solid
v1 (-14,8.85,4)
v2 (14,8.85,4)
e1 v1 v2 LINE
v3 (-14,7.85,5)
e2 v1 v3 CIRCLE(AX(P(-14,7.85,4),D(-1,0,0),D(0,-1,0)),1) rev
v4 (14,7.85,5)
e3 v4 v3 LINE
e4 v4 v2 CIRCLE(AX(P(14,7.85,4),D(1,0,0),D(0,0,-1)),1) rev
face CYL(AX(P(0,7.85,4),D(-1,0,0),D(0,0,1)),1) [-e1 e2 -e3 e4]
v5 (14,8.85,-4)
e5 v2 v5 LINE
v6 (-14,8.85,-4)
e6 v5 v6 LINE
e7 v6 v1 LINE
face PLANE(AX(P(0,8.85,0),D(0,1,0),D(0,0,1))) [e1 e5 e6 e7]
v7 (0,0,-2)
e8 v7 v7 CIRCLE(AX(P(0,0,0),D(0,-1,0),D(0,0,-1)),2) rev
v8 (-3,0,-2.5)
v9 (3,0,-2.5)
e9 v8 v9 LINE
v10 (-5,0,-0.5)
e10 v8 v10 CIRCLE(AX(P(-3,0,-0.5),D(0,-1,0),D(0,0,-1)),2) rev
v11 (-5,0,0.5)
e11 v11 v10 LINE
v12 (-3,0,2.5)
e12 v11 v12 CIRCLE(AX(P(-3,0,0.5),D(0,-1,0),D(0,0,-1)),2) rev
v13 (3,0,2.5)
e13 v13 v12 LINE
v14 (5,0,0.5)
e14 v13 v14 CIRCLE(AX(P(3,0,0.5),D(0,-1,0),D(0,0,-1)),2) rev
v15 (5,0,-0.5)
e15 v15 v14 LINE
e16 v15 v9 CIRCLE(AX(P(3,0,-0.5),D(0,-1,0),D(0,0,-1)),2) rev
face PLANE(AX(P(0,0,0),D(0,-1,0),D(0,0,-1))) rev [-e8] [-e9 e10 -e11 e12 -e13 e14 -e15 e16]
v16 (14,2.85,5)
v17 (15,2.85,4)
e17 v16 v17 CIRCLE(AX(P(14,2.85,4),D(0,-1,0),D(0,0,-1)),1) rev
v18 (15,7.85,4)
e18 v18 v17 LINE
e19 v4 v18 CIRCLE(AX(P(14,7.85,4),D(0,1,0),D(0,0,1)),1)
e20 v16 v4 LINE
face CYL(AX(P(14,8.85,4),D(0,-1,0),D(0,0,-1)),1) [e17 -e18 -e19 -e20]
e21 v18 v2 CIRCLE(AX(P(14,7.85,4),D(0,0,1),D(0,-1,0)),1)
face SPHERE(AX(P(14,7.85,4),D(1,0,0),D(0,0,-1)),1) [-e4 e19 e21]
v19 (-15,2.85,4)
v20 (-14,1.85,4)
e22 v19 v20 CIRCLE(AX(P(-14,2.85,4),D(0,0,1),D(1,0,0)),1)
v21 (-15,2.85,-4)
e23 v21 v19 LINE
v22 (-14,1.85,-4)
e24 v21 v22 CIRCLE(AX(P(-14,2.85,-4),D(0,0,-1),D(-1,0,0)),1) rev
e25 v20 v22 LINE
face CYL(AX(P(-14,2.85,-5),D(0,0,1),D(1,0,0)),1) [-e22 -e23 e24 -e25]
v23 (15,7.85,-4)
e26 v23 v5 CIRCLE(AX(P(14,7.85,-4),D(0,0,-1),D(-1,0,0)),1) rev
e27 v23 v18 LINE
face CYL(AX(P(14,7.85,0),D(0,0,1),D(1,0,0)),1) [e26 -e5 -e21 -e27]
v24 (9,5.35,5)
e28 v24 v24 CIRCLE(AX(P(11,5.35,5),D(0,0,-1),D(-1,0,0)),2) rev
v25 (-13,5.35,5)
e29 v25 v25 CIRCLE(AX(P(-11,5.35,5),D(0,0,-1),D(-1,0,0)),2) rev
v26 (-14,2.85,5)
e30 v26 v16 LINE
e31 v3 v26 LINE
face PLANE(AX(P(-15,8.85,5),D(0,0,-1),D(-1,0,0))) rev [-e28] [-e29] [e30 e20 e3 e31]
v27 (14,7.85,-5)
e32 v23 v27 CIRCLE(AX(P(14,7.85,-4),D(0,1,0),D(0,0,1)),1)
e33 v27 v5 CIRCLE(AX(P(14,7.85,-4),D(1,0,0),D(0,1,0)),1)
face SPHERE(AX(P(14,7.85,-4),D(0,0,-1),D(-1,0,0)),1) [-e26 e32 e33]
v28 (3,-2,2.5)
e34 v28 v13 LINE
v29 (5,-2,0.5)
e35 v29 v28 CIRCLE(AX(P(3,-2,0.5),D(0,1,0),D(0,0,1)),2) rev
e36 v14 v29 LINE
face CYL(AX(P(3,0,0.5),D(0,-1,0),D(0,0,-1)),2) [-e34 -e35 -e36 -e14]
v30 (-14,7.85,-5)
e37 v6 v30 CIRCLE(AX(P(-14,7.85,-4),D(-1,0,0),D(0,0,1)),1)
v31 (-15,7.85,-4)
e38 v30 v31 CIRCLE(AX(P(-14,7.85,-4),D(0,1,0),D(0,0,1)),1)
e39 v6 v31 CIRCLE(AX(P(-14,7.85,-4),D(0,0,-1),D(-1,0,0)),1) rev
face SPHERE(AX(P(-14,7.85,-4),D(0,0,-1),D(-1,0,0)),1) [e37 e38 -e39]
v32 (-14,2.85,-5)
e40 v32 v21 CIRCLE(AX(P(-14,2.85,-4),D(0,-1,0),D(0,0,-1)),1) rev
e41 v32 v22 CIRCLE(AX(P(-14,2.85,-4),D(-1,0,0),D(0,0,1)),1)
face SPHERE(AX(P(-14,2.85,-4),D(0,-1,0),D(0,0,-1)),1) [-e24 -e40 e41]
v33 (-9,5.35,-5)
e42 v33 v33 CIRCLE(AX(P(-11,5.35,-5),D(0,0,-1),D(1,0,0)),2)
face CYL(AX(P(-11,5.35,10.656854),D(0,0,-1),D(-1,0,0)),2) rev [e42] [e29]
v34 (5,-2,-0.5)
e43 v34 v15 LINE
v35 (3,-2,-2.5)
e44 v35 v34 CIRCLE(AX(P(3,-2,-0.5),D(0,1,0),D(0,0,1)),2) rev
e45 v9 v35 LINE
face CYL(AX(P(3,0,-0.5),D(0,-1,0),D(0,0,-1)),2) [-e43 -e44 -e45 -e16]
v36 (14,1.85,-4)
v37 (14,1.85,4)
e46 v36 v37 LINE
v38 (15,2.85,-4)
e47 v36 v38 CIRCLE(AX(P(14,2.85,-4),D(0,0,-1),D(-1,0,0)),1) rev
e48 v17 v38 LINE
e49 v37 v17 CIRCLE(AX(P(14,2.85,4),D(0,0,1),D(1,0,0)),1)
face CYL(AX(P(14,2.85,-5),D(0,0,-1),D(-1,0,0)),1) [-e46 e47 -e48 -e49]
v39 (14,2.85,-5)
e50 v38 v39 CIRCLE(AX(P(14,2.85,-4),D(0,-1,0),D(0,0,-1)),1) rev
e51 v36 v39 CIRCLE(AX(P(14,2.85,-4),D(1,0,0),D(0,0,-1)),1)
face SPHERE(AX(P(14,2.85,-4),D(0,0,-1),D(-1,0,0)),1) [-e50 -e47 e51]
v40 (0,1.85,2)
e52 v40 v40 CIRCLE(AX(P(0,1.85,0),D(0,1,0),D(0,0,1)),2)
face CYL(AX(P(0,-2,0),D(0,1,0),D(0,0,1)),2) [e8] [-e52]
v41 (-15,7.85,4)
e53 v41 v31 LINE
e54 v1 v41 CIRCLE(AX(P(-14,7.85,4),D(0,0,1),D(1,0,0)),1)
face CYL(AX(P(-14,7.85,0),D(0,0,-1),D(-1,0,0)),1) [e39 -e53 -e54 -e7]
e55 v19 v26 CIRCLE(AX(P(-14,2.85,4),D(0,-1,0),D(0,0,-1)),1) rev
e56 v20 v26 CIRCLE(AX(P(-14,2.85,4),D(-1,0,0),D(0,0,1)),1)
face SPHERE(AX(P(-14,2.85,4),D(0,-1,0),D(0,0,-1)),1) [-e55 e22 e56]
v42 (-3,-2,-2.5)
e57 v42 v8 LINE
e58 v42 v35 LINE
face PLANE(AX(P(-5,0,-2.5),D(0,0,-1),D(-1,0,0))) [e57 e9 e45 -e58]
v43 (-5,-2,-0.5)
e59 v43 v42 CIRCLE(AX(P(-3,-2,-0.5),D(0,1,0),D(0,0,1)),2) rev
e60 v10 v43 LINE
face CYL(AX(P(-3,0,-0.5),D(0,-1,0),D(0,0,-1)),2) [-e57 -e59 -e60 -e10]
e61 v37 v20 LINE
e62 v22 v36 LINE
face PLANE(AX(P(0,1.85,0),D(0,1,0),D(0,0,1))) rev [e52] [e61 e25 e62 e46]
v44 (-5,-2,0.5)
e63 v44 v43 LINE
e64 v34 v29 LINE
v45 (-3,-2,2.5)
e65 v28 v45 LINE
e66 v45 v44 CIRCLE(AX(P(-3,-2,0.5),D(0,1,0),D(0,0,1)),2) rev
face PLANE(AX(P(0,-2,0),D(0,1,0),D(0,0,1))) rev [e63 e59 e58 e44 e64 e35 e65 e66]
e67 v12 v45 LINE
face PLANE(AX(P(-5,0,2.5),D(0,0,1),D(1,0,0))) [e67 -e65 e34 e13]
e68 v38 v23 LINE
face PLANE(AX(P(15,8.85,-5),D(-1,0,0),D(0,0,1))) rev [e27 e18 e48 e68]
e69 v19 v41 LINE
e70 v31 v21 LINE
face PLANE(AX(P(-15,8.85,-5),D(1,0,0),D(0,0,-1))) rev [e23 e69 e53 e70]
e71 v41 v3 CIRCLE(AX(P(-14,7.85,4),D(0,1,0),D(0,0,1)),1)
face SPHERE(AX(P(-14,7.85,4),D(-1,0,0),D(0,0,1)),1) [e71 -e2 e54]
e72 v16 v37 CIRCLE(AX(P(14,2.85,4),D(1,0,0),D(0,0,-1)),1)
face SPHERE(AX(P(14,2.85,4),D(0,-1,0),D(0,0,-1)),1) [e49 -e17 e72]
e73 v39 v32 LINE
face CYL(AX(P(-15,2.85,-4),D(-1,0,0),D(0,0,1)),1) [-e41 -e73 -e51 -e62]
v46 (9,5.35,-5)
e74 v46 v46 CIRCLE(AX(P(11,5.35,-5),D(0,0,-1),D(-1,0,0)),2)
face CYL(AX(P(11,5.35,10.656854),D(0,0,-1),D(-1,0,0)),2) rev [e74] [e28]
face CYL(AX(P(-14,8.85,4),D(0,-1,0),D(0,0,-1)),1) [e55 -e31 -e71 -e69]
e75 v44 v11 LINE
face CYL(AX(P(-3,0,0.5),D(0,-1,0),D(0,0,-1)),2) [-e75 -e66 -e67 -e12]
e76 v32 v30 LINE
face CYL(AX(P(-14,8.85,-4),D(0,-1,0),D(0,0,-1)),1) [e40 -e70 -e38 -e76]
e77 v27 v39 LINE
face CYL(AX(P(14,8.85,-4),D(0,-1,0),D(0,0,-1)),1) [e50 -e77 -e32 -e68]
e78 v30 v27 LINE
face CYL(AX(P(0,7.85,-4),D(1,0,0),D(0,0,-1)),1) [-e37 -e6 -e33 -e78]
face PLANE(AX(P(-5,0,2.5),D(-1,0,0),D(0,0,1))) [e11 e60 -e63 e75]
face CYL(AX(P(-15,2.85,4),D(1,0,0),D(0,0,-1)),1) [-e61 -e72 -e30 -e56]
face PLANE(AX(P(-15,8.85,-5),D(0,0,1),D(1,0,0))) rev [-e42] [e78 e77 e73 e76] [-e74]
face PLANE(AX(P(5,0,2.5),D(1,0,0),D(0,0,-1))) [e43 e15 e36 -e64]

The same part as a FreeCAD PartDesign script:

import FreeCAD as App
import Part
import Sketcher
from FreeCAD import Vector
Q = App.Units.Quantity


def edges_at(feature, points):
    """Names of the edges that pass closest to the given points."""
    edges = feature.Shape.Edges
    near = lambda p: min(range(len(edges)), key=lambda i: edges[i].distToShape(Part.Vertex(*p))[0])
    return sorted({f"Edge{near(p) + 1}" for p in points})


def add_polygon(sketch, points):
    """Adds a closed chain of lines whose ends are joined by coincident constraints."""
    first, n = sketch.GeometryCount, len(points)
    for a, b in zip(points, points[1:] + points[:1]):
        sketch.addGeometry(Part.LineSegment(App.Vector(*a, 0), App.Vector(*b, 0)), False)
    for i in range(n):
        sketch.addConstraint(Sketcher.Constraint("Coincident", first + i, 2, first + (i + 1) % n, 1))

doc = App.newDocument("Part")
body = doc.addObject("PartDesign::Body", "Body")

# Sketch on XZ plane
sketch1 = body.newObject("Sketcher::SketchObject", "Sketch")
sketch1.AttachmentSupport = (doc.getObject("XZ_Plane"), [""])
sketch1.MapMode = "FlatFace"
sketch1.addGeometry(Part.Circle(Vector(0, 0, 0), Vector(0, 0, 1), 2), False)
sketch1.addConstraint([
    Sketcher.Constraint("Coincident", 0, 3, -1, 1),
    Sketcher.Constraint("Diameter", 0, Q("4 mm")),
])
pad1 = body.newObject("PartDesign::Pad", "Pad")
pad1.Profile = sketch1
pad1.Type = "TwoLengths"
pad1.Length = 1.85
pad1.Length2 = 2
pad1.Reversed = True

# Sketch on XZ plane
sketch2 = body.newObject("Sketcher::SketchObject", "Sketch001")
sketch2.AttachmentSupport = (doc.getObject("XZ_Plane"), [""])
sketch2.MapMode = "FlatFace"
sketch2.AttachmentOffset = App.Placement(Vector(0, 0, -1.85), App.Rotation())
add_polygon(sketch2, [(-15, -5), (-15, 5), (15, 5), (15, -5)])  # lines 0-3
sketch2.addConstraint([
    Sketcher.Constraint("Vertical", 0),
    Sketcher.Constraint("Horizontal", 1),
    Sketcher.Constraint("Vertical", 2),
    Sketcher.Constraint("Horizontal", 3),
    Sketcher.Constraint("Symmetric", 0, 2, 2, 2, -1, 1),
    Sketcher.Constraint("DistanceX", 1, 1, 1, 2, Q("30 mm")),
    Sketcher.Constraint("DistanceY", 0, 1, 0, 2, Q("10 mm")),
])
pad2 = body.newObject("PartDesign::Pad", "Pad001")
pad2.Profile = sketch2
pad2.Length = 7
pad2.Reversed = True

# Sketch on XZ plane
sketch3 = body.newObject("Sketcher::SketchObject", "Sketch002")
sketch3.AttachmentSupport = (doc.getObject("XZ_Plane"), [""])
sketch3.MapMode = "FlatFace"
sketch3.AttachmentOffset = App.Placement(Vector(0, 0, 2), App.Rotation())
add_polygon(sketch3, [(-5, 2.5), (-5, -2.5), (5, -2.5), (5, 2.5)])  # lines 0-3
sketch3.addConstraint([
    Sketcher.Constraint("Vertical", 0),
    Sketcher.Constraint("Horizontal", 1),
    Sketcher.Constraint("Vertical", 2),
    Sketcher.Constraint("Horizontal", 3),
    Sketcher.Constraint("Symmetric", 0, 2, 2, 2, -1, 1),
    Sketcher.Constraint("DistanceX", 1, 1, 1, 2, Q("10 mm")),
    Sketcher.Constraint("DistanceY", 0, 2, 0, 1, Q("5 mm")),
])
pad3 = body.newObject("PartDesign::Pad", "Pad002")
pad3.Profile = sketch3
pad3.Length = 2
pad3.Reversed = True
doc.recompute()

fillet = body.newObject("PartDesign::Fillet", "Fillet")
fillet.Base = (pad3, edges_at(pad3, [
    (5, -1, 2.5),
    (5, -1, -2.5),
    (-5, -1, -2.5),
    (-5, -1, 2.5),
]))
fillet.Radius = 2

# Sketch on XY plane
sketch4 = body.newObject("Sketcher::SketchObject", "Sketch003")
sketch4.AttachmentSupport = (doc.getObject("XY_Plane"), [""])
sketch4.MapMode = "FlatFace"
sketch4.AttachmentOffset = App.Placement(Vector(0, 0, -5), App.Rotation())
sketch4.addGeometry([
    Part.Circle(Vector(11, 5.35, 0), Vector(0, 0, 1), 2),
    Part.Circle(Vector(-11, 5.35, 0), Vector(0, 0, 1), 2),
], False)
sketch4.addConstraint([
    Sketcher.Constraint("Equal", 0, 1),
    Sketcher.Constraint("Symmetric", 0, 3, 1, 3, -2),
    Sketcher.Constraint("Diameter", 0, Q("4 mm")),
    Sketcher.Constraint("DistanceX", -1, 1, 0, 3, Q("11 mm")),
    Sketcher.Constraint("DistanceY", -1, 1, 0, 3, Q("5.35 mm")),
])
pocket1 = body.newObject("PartDesign::Pocket", "Pocket")
pocket1.Profile = sketch4
pocket1.Length = 10
pocket1.Reversed = True
doc.recompute()

fillet2 = body.newObject("PartDesign::Fillet", "Fillet001")
fillet2.Base = (pocket1, edges_at(pocket1, [
    (-15, 5.35, 5),
    (15, 8.85, 0),
    (0, 8.85, -5),
    (-15, 8.85, 0),
    (0, 8.85, 5),
    (15, 1.85, 0),
    (15, 5.35, 5),
    (0, 1.85, -5),
    (15, 5.35, -5),
    (-15, 1.85, 0),
    (-15, 5.35, -5),
    (0, 1.85, 5),
]))
fillet2.Radius = 1

doc.recompute()
